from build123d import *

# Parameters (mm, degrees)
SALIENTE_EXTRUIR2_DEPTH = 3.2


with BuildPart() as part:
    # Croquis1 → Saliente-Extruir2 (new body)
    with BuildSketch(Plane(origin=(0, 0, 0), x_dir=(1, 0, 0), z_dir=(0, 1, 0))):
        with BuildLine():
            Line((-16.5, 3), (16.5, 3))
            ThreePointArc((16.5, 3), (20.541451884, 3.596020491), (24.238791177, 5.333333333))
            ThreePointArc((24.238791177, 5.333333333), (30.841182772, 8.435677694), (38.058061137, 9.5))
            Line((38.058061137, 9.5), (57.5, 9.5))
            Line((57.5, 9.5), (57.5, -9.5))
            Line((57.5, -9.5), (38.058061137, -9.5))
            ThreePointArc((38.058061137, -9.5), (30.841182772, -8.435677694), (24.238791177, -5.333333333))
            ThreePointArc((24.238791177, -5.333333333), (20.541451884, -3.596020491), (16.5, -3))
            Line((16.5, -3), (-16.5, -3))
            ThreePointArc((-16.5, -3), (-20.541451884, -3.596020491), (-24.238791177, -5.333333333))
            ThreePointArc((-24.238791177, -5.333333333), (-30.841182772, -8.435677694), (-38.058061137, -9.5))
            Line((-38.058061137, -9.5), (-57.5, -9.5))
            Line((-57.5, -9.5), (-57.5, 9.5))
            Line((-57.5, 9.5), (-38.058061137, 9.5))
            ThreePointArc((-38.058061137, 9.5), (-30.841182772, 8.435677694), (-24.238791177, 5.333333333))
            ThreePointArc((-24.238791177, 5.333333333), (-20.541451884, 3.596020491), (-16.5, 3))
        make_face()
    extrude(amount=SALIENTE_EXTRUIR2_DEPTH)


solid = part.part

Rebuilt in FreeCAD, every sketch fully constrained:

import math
import FreeCAD as App
import Part
import Sketcher
Q = App.Units.Quantity

doc = App.newDocument("Part")
body = doc.addObject("PartDesign::Body", "Body")

# Sketch on XZ plane
sketch1 = body.newObject("Sketcher::SketchObject", "Sketch")
sketch1.AttachmentSupport = (doc.getObject("XZ_Plane"), [""])
sketch1.MapMode = "FlatFace"
sketch1.addGeometry([
    Part.LineSegment(App.Vector(16, -3, 0), App.Vector(-16, -3, 0)),  # 0
    Part.ArcOfCircle(Part.Circle(App.Vector(-17, -17, 0), App.Vector(0, 0, 1), 14), math.radians(90), math.radians(124)),  # 1
    Part.ArcOfCircle(Part.Circle(App.Vector(-38, 15, 0), App.Vector(0, 0, 1), 25), math.radians(-90), math.radians(-56)),  # 2
    Part.LineSegment(App.Vector(-38, -10, 0), App.Vector(-58, -10, 0)),  # 3
    Part.LineSegment(App.Vector(-58, -10, 0), App.Vector(-58, 10, 0)),  # 4
    Part.LineSegment(App.Vector(-58, 10, 0), App.Vector(-38, 10, 0)),  # 5
    Part.ArcOfCircle(Part.Circle(App.Vector(-38, -15, 0), App.Vector(0, 0, 1), 25), math.radians(56), math.radians(90)),  # 6
    Part.ArcOfCircle(Part.Circle(App.Vector(-17, 17, 0), App.Vector(0, 0, 1), 14), math.radians(-124), math.radians(-90)),  # 7
    Part.LineSegment(App.Vector(-16, 3, 0), App.Vector(16, 3, 0)),  # 8
    Part.ArcOfCircle(Part.Circle(App.Vector(17, 17, 0), App.Vector(0, 0, 1), 14), math.radians(-90), math.radians(-56)),  # 9
    Part.ArcOfCircle(Part.Circle(App.Vector(38, -15, 0), App.Vector(0, 0, 1), 25), math.radians(90), math.radians(124)),  # 10
    Part.LineSegment(App.Vector(38, 10, 0), App.Vector(58, 10, 0)),  # 11
    Part.LineSegment(App.Vector(58, 10, 0), App.Vector(58, -10, 0)),  # 12
    Part.LineSegment(App.Vector(58, -10, 0), App.Vector(38, -10, 0)),  # 13
    Part.ArcOfCircle(Part.Circle(App.Vector(38, 15, 0), App.Vector(0, 0, 1), 25), math.radians(-124), math.radians(-90)),  # 14
    Part.ArcOfCircle(Part.Circle(App.Vector(17, -17, 0), App.Vector(0, 0, 1), 14), math.radians(56), math.radians(90)),  # 15
], False)
sketch1.addConstraint([
    Sketcher.Constraint("Tangent", 0, 2, 1, 1),
    Sketcher.Constraint("Tangent", 1, 2, 2, 2),
    Sketcher.Constraint("Tangent", 2, 1, 3, 1),
    Sketcher.Constraint("Coincident", 3, 2, 4, 1),
    Sketcher.Constraint("Coincident", 4, 2, 5, 1),
    Sketcher.Constraint("Tangent", 5, 2, 6, 2),
    Sketcher.Constraint("Tangent", 6, 1, 7, 1),
    Sketcher.Constraint("Tangent", 7, 2, 8, 1),
    Sketcher.Constraint("Tangent", 8, 2, 9, 1),
    Sketcher.Constraint("Tangent", 9, 2, 10, 2),
    Sketcher.Constraint("Tangent", 10, 1, 11, 1),
    Sketcher.Constraint("Coincident", 11, 2, 12, 1),
    Sketcher.Constraint("Coincident", 12, 2, 13, 1),
    Sketcher.Constraint("Tangent", 13, 2, 14, 2),
    Sketcher.Constraint("Tangent", 14, 1, 15, 1),
    Sketcher.Constraint("Tangent", 15, 2, 0, 1),
    Sketcher.Constraint("Horizontal", 0),
    Sketcher.Constraint("Horizontal", 3),
    Sketcher.Constraint("Vertical", 4),
    Sketcher.Constraint("Horizontal", 5),
    Sketcher.Constraint("Horizontal", 8),
    Sketcher.Constraint("Horizontal", 11),
    Sketcher.Constraint("Vertical", 12),
    Sketcher.Constraint("Horizontal", 13),
    Sketcher.Constraint("Equal", 2, 6),
    Sketcher.Constraint("Equal", 1, 7),
    Sketcher.Constraint("Equal", 7, 9),
    Sketcher.Constraint("Equal", 6, 10),
    Sketcher.Constraint("Equal", 10, 14),
    Sketcher.Constraint("Equal", 9, 15),
    Sketcher.Constraint("Symmetric", 1, 3, 9, 3, -1, 1),
    Sketcher.Constraint("Symmetric", 6, 3, 14, 3, -1, 1),
    Sketcher.Constraint("Symmetric", 3, 2, 11, 2, -1, 1),
    Sketcher.Constraint("Symmetric", 6, 3, 10, 3, -2),
    Sketcher.Constraint("Radius", 1, Q("14 mm")),
    Sketcher.Constraint("Radius", 2, Q("25 mm")),
    Sketcher.Constraint("DistanceX", 0, 2, 0, 1, Q("33 mm")),
    Sketcher.Constraint("DistanceY", 4, 1, 4, 2, Q("19 mm")),
    Sketcher.Constraint("DistanceY", 1, 3, -1, 1, Q("17 mm")),
    Sketcher.Constraint("DistanceX", 3, 2, 0, 2, Q("41 mm")),
])
pad1 = body.newObject("PartDesign::Pad", "Pad")
pad1.Profile = sketch1
pad1.Length = 3.2
pad1.Reversed = True

doc.recompute()
